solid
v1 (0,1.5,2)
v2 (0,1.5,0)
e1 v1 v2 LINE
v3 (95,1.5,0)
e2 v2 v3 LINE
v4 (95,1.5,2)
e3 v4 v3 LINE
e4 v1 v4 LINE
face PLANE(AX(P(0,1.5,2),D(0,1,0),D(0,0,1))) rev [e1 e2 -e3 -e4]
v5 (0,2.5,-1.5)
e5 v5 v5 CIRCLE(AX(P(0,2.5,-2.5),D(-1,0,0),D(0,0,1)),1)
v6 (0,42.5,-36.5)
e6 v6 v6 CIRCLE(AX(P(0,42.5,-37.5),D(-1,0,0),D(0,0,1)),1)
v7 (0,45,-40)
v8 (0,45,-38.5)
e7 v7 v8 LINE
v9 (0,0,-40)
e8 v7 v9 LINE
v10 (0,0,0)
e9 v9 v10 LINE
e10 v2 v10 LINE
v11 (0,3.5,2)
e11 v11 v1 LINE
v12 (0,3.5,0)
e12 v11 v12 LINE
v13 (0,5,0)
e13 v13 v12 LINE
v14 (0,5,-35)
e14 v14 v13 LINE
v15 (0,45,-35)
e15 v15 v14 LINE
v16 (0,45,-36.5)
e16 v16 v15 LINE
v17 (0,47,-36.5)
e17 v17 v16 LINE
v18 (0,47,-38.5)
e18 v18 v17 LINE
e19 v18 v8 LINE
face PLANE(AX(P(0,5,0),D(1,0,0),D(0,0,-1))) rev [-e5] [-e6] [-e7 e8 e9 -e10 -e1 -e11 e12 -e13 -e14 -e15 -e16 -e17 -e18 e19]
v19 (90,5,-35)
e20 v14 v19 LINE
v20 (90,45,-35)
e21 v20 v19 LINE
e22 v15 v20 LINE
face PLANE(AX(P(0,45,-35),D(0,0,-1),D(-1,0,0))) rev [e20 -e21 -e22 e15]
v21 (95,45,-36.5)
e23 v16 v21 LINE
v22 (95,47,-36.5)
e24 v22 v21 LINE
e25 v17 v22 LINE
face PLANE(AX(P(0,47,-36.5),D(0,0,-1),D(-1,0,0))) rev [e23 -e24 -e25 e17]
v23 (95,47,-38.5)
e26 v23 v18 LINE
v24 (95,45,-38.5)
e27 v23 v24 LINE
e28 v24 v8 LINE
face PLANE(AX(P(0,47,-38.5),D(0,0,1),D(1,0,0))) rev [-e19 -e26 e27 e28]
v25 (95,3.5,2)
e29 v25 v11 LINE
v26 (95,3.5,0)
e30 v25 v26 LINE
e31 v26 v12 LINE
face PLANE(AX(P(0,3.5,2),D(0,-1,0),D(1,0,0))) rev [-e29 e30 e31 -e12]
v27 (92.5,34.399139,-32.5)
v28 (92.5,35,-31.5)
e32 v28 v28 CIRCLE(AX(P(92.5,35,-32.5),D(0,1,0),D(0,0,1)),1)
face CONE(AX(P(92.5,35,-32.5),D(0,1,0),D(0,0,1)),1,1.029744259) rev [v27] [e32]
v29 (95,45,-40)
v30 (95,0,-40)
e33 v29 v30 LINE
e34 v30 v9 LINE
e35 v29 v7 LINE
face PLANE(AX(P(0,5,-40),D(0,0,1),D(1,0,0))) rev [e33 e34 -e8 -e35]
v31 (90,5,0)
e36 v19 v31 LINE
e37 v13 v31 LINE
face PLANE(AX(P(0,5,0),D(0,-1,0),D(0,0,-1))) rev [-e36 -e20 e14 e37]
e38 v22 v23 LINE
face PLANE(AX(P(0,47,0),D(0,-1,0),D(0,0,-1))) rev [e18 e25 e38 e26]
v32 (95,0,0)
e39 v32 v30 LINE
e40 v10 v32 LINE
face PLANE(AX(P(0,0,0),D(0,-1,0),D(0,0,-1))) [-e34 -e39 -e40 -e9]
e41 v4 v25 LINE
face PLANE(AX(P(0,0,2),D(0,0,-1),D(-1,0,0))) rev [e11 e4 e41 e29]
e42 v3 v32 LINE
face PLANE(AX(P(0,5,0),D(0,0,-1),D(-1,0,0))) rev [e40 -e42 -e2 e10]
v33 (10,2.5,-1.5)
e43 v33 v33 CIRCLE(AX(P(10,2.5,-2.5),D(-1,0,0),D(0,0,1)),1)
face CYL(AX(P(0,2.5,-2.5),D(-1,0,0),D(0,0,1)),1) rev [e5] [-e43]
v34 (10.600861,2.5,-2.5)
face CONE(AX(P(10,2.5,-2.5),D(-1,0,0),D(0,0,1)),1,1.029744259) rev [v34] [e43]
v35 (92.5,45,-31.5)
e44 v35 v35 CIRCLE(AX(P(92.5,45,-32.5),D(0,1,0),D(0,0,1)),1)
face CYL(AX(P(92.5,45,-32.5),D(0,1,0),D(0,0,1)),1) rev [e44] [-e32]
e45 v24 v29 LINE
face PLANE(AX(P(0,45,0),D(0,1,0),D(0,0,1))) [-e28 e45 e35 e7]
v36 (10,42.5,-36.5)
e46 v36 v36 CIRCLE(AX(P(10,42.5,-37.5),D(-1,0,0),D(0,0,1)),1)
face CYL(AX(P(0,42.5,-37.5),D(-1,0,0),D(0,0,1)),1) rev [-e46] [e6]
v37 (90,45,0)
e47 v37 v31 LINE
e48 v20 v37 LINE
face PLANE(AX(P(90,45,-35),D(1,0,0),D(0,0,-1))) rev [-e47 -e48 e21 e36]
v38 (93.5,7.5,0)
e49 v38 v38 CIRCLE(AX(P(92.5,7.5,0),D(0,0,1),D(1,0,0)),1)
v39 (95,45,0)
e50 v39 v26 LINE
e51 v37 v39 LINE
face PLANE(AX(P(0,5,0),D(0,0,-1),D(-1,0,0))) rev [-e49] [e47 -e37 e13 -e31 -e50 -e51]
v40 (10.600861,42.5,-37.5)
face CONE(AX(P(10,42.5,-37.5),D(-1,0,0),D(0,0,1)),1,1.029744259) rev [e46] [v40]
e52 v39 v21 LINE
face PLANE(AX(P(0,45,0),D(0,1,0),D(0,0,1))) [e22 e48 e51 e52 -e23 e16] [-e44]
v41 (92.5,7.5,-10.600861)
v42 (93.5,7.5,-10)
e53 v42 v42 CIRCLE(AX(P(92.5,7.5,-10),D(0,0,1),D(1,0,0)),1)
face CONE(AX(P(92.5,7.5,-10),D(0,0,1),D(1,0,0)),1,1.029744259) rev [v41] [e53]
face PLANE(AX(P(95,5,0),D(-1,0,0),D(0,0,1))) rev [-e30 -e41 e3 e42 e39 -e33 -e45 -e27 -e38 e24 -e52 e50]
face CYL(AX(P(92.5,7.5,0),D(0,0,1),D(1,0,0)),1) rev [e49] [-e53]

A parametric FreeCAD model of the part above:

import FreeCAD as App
import Part
import Sketcher
from FreeCAD import Vector
Q = App.Units.Quantity


def add_polygon(sketch, points):
    """Adds a closed chain of lines whose ends are joined by coincident constraints."""
    first, n = sketch.GeometryCount, len(points)
    for a, b in zip(points, points[1:] + points[:1]):
        sketch.addGeometry(Part.LineSegment(App.Vector(*a, 0), App.Vector(*b, 0)), False)
    for i in range(n):
        sketch.addConstraint(Sketcher.Constraint("Coincident", first + i, 2, first + (i + 1) % n, 1))

doc = App.newDocument("Part")
body = doc.addObject("PartDesign::Body", "Body")

# Sketch on XZ plane
sketch1 = body.newObject("Sketcher::SketchObject", "Sketch")
sketch1.AttachmentSupport = (doc.getObject("XZ_Plane"), [""])
sketch1.MapMode = "FlatFace"
add_polygon(sketch1, [(0, -40), (0, 0), (95, 0), (95, -40)])  # lines 0-3
sketch1.addConstraint([
    Sketcher.Constraint("Vertical", 0),
    Sketcher.Constraint("Horizontal", 1),
    Sketcher.Constraint("Vertical", 2),
    Sketcher.Constraint("Horizontal", 3),
    Sketcher.Constraint("Coincident", 0, 2, -1, 1),
    Sketcher.Constraint("DistanceX", 1, 1, 1, 2, Q("95 mm")),
    Sketcher.Constraint("DistanceY", 0, 1, 0, 2, Q("40 mm")),
])
pad1 = body.newObject("PartDesign::Pad", "Pad")
pad1.Profile = sketch1
pad1.Length = 5
pad1.Reversed = True

# Sketch on XZ plane
sketch2 = body.newObject("Sketcher::SketchObject", "Sketch001")
sketch2.AttachmentSupport = (doc.getObject("XZ_Plane"), [""])
sketch2.MapMode = "FlatFace"
sketch2.AttachmentOffset = App.Placement(Vector(0, 0, -5), App.Rotation())
add_polygon(sketch2, [(0, -35), (90, -35), (90, 0), (95, 0), (95, -40), (0, -40)])  # lines 0-5
sketch2.addConstraint([
    Sketcher.Constraint("Horizontal", 0),
    Sketcher.Constraint("Vertical", 1),
    Sketcher.Constraint("Horizontal", 2),
    Sketcher.Constraint("Vertical", 3),
    Sketcher.Constraint("Horizontal", 4),
    Sketcher.Constraint("Vertical", 5),
    Sketcher.Constraint("PointOnObject", 1, 2, -1),
    Sketcher.Constraint("PointOnObject", 4, 2, -2),
    Sketcher.Constraint("Equal", 2, 5),
    Sketcher.Constraint("DistanceX", 0, 1, 0, 2, Q("90 mm")),
    Sketcher.Constraint("DistanceX", 2, 1, 2, 2, Q("5 mm")),
    Sketcher.Constraint("DistanceY", 1, 1, 1, 2, Q("35 mm")),
])
pad2 = body.newObject("PartDesign::Pad", "Pad001")
pad2.Profile = sketch2
pad2.Length = 40
pad2.Reversed = True

# Sketch on XZ plane
sketch3 = body.newObject("Sketcher::SketchObject", "Sketch002")
sketch3.AttachmentSupport = (doc.getObject("XZ_Plane"), [""])
sketch3.MapMode = "FlatFace"
sketch3.AttachmentOffset = App.Placement(Vector(0, 0, -45), App.Rotation())
add_polygon(sketch3, [(0, -38.5), (0, -36.5), (95, -36.5), (95, -38.5)])  # lines 0-3
sketch3.addConstraint([
    Sketcher.Constraint("Vertical", 0),
    Sketcher.Constraint("Horizontal", 1),
    Sketcher.Constraint("Vertical", 2),
    Sketcher.Constraint("Horizontal", 3),
    Sketcher.Constraint("PointOnObject", 0, 2, -2),
    Sketcher.Constraint("DistanceX", 1, 1, 1, 2, Q("95 mm")),
    Sketcher.Constraint("DistanceY", 0, 1, 0, 2, Q("2 mm")),
    Sketcher.Constraint("DistanceY", 0, 2, -1, 1, Q("36.5 mm")),
])
pad3 = body.newObject("PartDesign::Pad", "Pad002")
pad3.Profile = sketch3
pad3.Length = 2
pad3.Reversed = True

# Sketch on XY plane
sketch4 = body.newObject("Sketcher::SketchObject", "Sketch003")
sketch4.AttachmentSupport = (doc.getObject("XY_Plane"), [""])
sketch4.MapMode = "FlatFace"
add_polygon(sketch4, [(0, 3.5), (0, 1.5), (95, 1.5), (95, 3.5)])  # lines 0-3
sketch4.addConstraint([
    Sketcher.Constraint("Vertical", 0),
    Sketcher.Constraint("Horizontal", 1),
    Sketcher.Constraint("Vertical", 2),
    Sketcher.Constraint("Horizontal", 3),
    Sketcher.Constraint("PointOnObject", 0, 2, -2),
    Sketcher.Constraint("DistanceX", 1, 1, 1, 2, Q("95 mm")),
    Sketcher.Constraint("DistanceY", 0, 2, 0, 1, Q("2 mm")),
    Sketcher.Constraint("DistanceY", -1, 1, 0, 2, Q("1.5 mm")),
])
pad4 = body.newObject("PartDesign::Pad", "Pad003")
pad4.Profile = sketch4
pad4.Length = 2

# Sketch on YZ plane
sketch5 = body.newObject("Sketcher::SketchObject", "Sketch004")
sketch5.AttachmentSupport = (doc.getObject("YZ_Plane"), [""])
sketch5.MapMode = "FlatFace"
sketch5.addGeometry([
    Part.Circle(Vector(42.5, -37.5, 0), Vector(0, 0, 1), 1),
    Part.Circle(Vector(2.5, -2.5, 0), Vector(0, 0, 1), 1),
], False)
sketch5.addConstraint([
    Sketcher.Constraint("Equal", 0, 1),
    Sketcher.Constraint("Diameter", 0, Q("2 mm")),
    Sketcher.Constraint("DistanceX", 1, 3, 0, 3, Q("40 mm")),
    Sketcher.Constraint("DistanceY", 0, 3, 1, 3, Q("35 mm")),
    Sketcher.Constraint("DistanceX", -1, 1, 0, 3, Q("42.5 mm")),
    Sketcher.Constraint("DistanceY", 0, 3, -1, 1, Q("37.5 mm")),
])
doc.recompute()
hole = body.newObject("PartDesign::Hole", "Hole")
hole.Profile = sketch5
hole.ThreadType = "None"
hole.Diameter = 2
hole.DepthType = "Dimension"
hole.Depth = 10
hole.DrillPoint = "Angled"
hole.DrillPointAngle = 118
hole.Reversed = True

# Sketch on XZ plane
sketch6 = body.newObject("Sketcher::SketchObject", "Sketch005")
sketch6.AttachmentSupport = (doc.getObject("XZ_Plane"), [""])
sketch6.MapMode = "FlatFace"
sketch6.AttachmentOffset = App.Placement(Vector(0, 0, -45), App.Rotation())
sketch6.addGeometry(Part.Circle(Vector(92.5, -32.5, 0), Vector(0, 0, 1), 1), False)
sketch6.addConstraint([
    Sketcher.Constraint("Diameter", 0, Q("2 mm")),
    Sketcher.Constraint("DistanceX", -1, 1, 0, 3, Q("92.5 mm")),
    Sketcher.Constraint("DistanceY", 0, 3, -1, 1, Q("32.5 mm")),
])
doc.recompute()
hole2 = body.newObject("PartDesign::Hole", "Hole001")
hole2.Profile = sketch6
hole2.ThreadType = "None"
hole2.Diameter = 2
hole2.DepthType = "Dimension"
hole2.Depth = 10
hole2.DrillPoint = "Angled"
hole2.DrillPointAngle = 118
hole2.Reversed = True

# Sketch on XY plane
sketch7 = body.newObject("Sketcher::SketchObject", "Sketch006")
sketch7.AttachmentSupport = (doc.getObject("XY_Plane"), [""])
sketch7.MapMode = "FlatFace"
sketch7.addGeometry(Part.Circle(Vector(92.5, 7.5, 0), Vector(0, 0, 1), 1), False)
sketch7.addConstraint([
    Sketcher.Constraint("Diameter", 0, Q("2 mm")),
    Sketcher.Constraint("DistanceX", -1, 1, 0, 3, Q("92.5 mm")),
    Sketcher.Constraint("DistanceY", -1, 1, 0, 3, Q("7.5 mm")),
])
doc.recompute()
hole3 = body.newObject("PartDesign::Hole", "Hole002")
hole3.Profile = sketch7
hole3.ThreadType = "None"
hole3.Diameter = 2
hole3.DepthType = "Dimension"
hole3.Depth = 10
hole3.DrillPoint = "Angled"
hole3.DrillPointAngle = 118

doc.recompute()
